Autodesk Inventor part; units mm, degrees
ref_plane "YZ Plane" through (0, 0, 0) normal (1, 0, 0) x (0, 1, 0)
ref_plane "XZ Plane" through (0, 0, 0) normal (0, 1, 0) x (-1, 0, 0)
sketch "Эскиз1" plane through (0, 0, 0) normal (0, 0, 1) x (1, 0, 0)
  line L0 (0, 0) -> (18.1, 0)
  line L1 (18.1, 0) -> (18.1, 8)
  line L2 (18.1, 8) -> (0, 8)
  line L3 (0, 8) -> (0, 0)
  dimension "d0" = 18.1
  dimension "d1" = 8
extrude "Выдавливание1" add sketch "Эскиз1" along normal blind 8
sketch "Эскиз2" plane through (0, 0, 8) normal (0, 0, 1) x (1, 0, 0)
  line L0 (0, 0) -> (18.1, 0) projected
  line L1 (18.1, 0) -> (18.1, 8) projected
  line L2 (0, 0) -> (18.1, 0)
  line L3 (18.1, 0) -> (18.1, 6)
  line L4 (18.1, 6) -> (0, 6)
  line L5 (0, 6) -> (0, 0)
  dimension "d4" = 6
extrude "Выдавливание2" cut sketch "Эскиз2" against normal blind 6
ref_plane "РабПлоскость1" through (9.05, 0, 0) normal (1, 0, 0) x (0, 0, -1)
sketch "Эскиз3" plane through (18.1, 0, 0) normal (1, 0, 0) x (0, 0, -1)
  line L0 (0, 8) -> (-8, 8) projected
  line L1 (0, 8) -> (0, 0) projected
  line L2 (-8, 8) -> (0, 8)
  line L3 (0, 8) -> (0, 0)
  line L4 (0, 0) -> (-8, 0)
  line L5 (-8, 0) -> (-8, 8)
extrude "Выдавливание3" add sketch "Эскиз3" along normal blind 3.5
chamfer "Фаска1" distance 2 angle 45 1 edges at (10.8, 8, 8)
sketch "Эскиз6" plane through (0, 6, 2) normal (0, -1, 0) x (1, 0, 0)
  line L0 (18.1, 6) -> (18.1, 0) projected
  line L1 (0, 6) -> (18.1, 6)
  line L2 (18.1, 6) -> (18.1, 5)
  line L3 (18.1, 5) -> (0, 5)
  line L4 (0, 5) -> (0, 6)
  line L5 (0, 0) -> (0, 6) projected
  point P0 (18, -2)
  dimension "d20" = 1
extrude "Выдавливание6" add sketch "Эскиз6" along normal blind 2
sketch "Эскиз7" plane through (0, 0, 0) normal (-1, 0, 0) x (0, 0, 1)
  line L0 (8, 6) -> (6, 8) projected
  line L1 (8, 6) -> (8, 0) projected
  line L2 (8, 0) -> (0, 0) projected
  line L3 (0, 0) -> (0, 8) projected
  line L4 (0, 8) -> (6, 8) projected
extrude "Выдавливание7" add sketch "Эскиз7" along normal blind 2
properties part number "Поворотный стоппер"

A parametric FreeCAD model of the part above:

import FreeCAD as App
import Part
import Sketcher
from FreeCAD import Vector
Q = App.Units.Quantity


def edges_at(feature, points):
    """Names of the edges that pass closest to the given points."""
    edges = feature.Shape.Edges
    near = lambda p: min(range(len(edges)), key=lambda i: edges[i].distToShape(Part.Vertex(*p))[0])
    return sorted({f"Edge{near(p) + 1}" for p in points})


def add_polygon(sketch, points):
    """Adds a closed chain of lines whose ends are joined by coincident constraints."""
    first, n = sketch.GeometryCount, len(points)
    for a, b in zip(points, points[1:] + points[:1]):
        sketch.addGeometry(Part.LineSegment(App.Vector(*a, 0), App.Vector(*b, 0)), False)
    for i in range(n):
        sketch.addConstraint(Sketcher.Constraint("Coincident", first + i, 2, first + (i + 1) % n, 1))

doc = App.newDocument("Part")
body = doc.addObject("PartDesign::Body", "Body")

sketch1 = doc.addObject("Sketcher::SketchObject", "Sketch")
body.addObject(sketch1)
sketch1.AttachmentSupport = (doc.XY_Plane, [""])
sketch1.MapMode = "FlatFace"
add_polygon(sketch1, [(0, 8), (0, 0), (18, 0), (18, 8)])
sketch1.addConstraint([
    Sketcher.Constraint("Vertical", 0),
    Sketcher.Constraint("Horizontal", 1),
    Sketcher.Constraint("Vertical", 2),
    Sketcher.Constraint("Horizontal", 3),
    Sketcher.Constraint("Coincident", 0, 2, -1, 1),
    Sketcher.Constraint("DistanceY", 0, 2, 0, 1, Q("8 mm")),
    Sketcher.Constraint("DistanceX", 1, 1, 1, 2, Q("18.1 mm")),
])
pad1 = doc.addObject("PartDesign::Pad", "Pad")
body.addObject(pad1)
pad1.Profile = sketch1
pad1.Length = 8

sketch2 = doc.addObject("Sketcher::SketchObject", "Sketch001")
body.addObject(sketch2)
sketch2.AttachmentSupport = (doc.XY_Plane, [""])
sketch2.MapMode = "FlatFace"
sketch2.AttachmentOffset = App.Placement(Vector(0, 0, 8), App.Rotation())
add_polygon(sketch2, [(0, 6), (0, 0), (18, 0), (18, 6)])
sketch2.addConstraint([
    Sketcher.Constraint("Vertical", 0),
    Sketcher.Constraint("Horizontal", 1),
    Sketcher.Constraint("Vertical", 2),
    Sketcher.Constraint("Horizontal", 3),
    Sketcher.Constraint("Coincident", 0, 2, -1, 1),
    Sketcher.Constraint("DistanceY", 0, 2, 0, 1, Q("6 mm")),
    Sketcher.Constraint("DistanceX", 1, 1, 1, 2, Q("18.1 mm")),
])
pocket1 = doc.addObject("PartDesign::Pocket", "Pocket")
body.addObject(pocket1)
pocket1.Profile = sketch2
pocket1.Length = 6

sketch3 = doc.addObject("Sketcher::SketchObject", "Sketch002")
body.addObject(sketch3)
sketch3.AttachmentSupport = (doc.YZ_Plane, [""])
sketch3.MapMode = "FlatFace"
sketch3.AttachmentOffset = App.Placement(Vector(0, 0, 18.1), App.Rotation())
add_polygon(sketch3, [(0, 0), (8, 0), (8, 8), (0, 8)])
sketch3.addConstraint([
    Sketcher.Constraint("Horizontal", 0),
    Sketcher.Constraint("Vertical", 1),
    Sketcher.Constraint("Horizontal", 2),
    Sketcher.Constraint("Vertical", 3),
    Sketcher.Constraint("Coincident", 3, 2, -1, 1),
    Sketcher.Constraint("Equal", 2, 1),
    Sketcher.Constraint("DistanceX", 0, 1, 0, 2, Q("8 mm")),
])
pad2 = doc.addObject("PartDesign::Pad", "Pad001")
body.addObject(pad2)
pad2.Profile = sketch3
pad2.Length = 3.5
doc.recompute()

chamfer = doc.addObject("PartDesign::Chamfer", "Chamfer")
body.addObject(chamfer)
chamfer.Base = (pad2, edges_at(pad2, [(10.8, 8, 8)]))
chamfer.Size = 2

sketch4 = doc.addObject("Sketcher::SketchObject", "Sketch003")
body.addObject(sketch4)
sketch4.AttachmentSupport = (doc.XZ_Plane, [""])
sketch4.MapMode = "FlatFace"
sketch4.AttachmentOffset = App.Placement(Vector(0, 0, -6), App.Rotation())
add_polygon(sketch4, [(18.1, 7), (18.1, 8), (0, 8), (0, 7)])
sketch4.addConstraint([
    Sketcher.Constraint("Vertical", 0),
    Sketcher.Constraint("Horizontal", 1),
    Sketcher.Constraint("Vertical", 2),
    Sketcher.Constraint("Horizontal", 3),
    Sketcher.Constraint("PointOnObject", 1, 2, -2),
    Sketcher.Constraint("DistanceY", 0, 1, 0, 2, Q("1 mm")),
    Sketcher.Constraint("DistanceX", 1, 2, 1, 1, Q("18.1 mm")),
    Sketcher.Constraint("DistanceY", -1, 1, 0, 2, Q("8 mm")),
])
pad3 = doc.addObject("PartDesign::Pad", "Pad002")
body.addObject(pad3)
pad3.Profile = sketch4
pad3.Length = 2

sketch5 = doc.addObject("Sketcher::SketchObject", "Sketch004")
body.addObject(sketch5)
sketch5.AttachmentSupport = (doc.YZ_Plane, [""])
sketch5.MapMode = "FlatFace"
add_polygon(sketch5, [(0, 8), (6, 8), (8, 6), (8, 0), (0, 0)])
sketch5.addConstraint([
    Sketcher.Constraint("Horizontal", 0),
    Sketcher.Constraint("Vertical", 2),
    Sketcher.Constraint("Horizontal", 3),
    Sketcher.Constraint("Vertical", 4),
    Sketcher.Constraint("Coincident", 3, 2, -1, 1),
    Sketcher.Constraint("Equal", 0, 2),
    Sketcher.Constraint("Equal", 3, 4),
    Sketcher.Constraint("DistanceX", 0, 1, 0, 2, Q("6 mm")),
    Sketcher.Constraint("DistanceX", 3, 2, 3, 1, Q("8 mm")),
])
pad4 = doc.addObject("PartDesign::Pad", "Pad003")
body.addObject(pad4)
pad4.Profile = sketch5
pad4.Length = 2
pad4.Reversed = True

doc.recompute()
